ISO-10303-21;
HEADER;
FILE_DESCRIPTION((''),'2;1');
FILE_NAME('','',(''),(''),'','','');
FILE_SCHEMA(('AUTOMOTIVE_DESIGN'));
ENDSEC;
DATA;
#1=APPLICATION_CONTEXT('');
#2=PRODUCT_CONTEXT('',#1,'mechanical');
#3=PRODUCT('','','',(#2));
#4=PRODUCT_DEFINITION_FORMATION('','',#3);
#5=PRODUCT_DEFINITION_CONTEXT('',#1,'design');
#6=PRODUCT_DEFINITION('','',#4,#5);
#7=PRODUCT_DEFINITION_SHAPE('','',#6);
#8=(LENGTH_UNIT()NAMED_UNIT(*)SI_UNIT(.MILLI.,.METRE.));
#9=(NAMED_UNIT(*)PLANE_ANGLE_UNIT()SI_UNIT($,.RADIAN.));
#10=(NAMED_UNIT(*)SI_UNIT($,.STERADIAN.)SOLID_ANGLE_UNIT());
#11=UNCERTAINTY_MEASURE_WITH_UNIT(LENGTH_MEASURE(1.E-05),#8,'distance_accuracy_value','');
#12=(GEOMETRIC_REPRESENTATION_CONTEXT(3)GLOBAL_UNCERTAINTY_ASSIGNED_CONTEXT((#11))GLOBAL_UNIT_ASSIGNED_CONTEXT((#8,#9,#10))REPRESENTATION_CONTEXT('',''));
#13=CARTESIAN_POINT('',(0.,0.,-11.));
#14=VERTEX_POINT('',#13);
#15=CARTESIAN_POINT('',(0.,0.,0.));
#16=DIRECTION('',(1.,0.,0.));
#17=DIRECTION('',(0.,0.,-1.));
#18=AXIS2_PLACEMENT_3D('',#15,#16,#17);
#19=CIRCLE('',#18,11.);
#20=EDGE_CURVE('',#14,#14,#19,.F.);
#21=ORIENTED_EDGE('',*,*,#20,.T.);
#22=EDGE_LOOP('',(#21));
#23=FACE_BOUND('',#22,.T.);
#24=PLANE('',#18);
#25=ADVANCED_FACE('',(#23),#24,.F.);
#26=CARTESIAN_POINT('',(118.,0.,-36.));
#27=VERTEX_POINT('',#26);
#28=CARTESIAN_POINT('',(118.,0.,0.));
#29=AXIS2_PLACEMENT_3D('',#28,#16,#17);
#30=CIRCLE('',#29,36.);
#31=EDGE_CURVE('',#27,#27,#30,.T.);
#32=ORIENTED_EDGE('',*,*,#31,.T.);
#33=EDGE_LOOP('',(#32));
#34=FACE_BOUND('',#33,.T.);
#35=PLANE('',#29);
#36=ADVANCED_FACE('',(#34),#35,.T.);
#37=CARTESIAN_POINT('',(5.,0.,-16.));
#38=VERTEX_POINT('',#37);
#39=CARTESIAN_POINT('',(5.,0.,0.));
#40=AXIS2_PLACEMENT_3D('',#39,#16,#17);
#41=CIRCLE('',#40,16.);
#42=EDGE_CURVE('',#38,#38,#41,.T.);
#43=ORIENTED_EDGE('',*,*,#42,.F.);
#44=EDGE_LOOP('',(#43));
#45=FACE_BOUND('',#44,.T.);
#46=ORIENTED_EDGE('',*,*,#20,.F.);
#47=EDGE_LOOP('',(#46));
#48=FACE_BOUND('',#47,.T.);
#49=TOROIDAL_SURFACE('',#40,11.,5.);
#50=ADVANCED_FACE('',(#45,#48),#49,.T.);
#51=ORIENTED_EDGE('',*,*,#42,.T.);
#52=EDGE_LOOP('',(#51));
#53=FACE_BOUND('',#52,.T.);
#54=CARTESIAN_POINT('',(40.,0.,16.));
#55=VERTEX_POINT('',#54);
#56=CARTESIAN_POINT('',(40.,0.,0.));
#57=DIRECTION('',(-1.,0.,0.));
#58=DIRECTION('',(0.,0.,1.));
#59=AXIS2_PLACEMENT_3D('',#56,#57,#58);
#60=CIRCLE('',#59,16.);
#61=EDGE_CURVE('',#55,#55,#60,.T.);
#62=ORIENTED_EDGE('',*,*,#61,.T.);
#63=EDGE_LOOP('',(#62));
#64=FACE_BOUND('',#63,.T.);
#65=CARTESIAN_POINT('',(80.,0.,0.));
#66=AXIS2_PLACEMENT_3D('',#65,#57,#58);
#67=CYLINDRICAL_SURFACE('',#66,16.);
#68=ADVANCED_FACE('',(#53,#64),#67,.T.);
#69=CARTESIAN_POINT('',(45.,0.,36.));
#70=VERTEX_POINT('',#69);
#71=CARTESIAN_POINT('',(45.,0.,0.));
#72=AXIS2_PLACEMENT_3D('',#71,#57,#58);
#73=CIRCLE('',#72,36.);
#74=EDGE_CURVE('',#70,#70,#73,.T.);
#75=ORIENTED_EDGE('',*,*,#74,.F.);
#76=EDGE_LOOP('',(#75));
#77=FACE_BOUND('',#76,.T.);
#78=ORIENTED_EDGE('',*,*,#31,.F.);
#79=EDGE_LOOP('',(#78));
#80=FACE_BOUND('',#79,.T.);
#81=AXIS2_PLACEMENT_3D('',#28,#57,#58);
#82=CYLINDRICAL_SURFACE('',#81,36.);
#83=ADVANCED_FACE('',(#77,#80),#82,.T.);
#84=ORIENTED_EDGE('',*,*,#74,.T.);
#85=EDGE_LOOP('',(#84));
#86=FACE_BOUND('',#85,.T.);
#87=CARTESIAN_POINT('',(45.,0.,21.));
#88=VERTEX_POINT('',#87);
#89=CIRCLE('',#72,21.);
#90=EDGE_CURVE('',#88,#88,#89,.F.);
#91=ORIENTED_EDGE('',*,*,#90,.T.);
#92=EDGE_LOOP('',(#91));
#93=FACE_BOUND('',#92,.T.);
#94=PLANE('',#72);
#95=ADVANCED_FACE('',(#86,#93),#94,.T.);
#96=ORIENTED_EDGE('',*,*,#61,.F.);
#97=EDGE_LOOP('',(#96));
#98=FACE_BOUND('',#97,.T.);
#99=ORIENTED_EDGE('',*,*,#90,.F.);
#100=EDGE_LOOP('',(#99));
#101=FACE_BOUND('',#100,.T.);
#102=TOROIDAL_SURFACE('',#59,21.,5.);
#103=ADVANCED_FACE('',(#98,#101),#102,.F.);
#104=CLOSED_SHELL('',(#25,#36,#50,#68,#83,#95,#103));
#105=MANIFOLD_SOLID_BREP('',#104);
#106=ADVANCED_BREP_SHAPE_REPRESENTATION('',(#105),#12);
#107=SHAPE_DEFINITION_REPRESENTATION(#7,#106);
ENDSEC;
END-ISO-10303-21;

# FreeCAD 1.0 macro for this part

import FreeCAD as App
import Part
import Sketcher

V = App.Vector


def edges_at(feature, points):
    """Names of the edges that pass closest to the given points."""
    edges = feature.Shape.Edges
    near = lambda p: min(range(len(edges)), key=lambda i: edges[i].distToShape(Part.Vertex(*p))[0])
    return sorted({f"Edge{near(p) + 1}" for p in points})

doc = App.newDocument("Part")
body = doc.addObject("PartDesign::Body", "Body")

# Sketch on YZ plane
sketch1 = body.newObject("Sketcher::SketchObject", "Sketch")
sketch1.AttachmentSupport = (doc.getObject("YZ_Plane"), [""])
sketch1.MapMode = "FlatFace"
sketch1.addGeometry(Part.Circle(V(0, 0, 0), V(0, 0, 1), 16), False)
sketch1.addConstraint(Sketcher.Constraint("Coincident", 0, 3, -1, 1))
sketch1.addConstraint(Sketcher.Constraint("Diameter", 0, 32.0))
pad1 = body.newObject("PartDesign::Pad", "Pad")
pad1.Profile = sketch1
pad1.Length = 80

# Sketch on YZ plane
sketch2 = body.newObject("Sketcher::SketchObject", "Sketch001")
sketch2.AttachmentSupport = (doc.getObject("YZ_Plane"), [""])
sketch2.MapMode = "FlatFace"
sketch2.AttachmentOffset = App.Placement(V(0, 0, 80), App.Rotation())
sketch2.addGeometry(Part.Circle(V(0, 0, 0), V(0, 0, 1), 36), False)
sketch2.addConstraint(Sketcher.Constraint("Coincident", 0, 3, -1, 1))
sketch2.addConstraint(Sketcher.Constraint("Diameter", 0, 72.0))
pad2 = body.newObject("PartDesign::Pad", "Pad001")
pad2.Profile = sketch2
pad2.Length = 38

# Sketch on YZ plane
sketch3 = body.newObject("Sketcher::SketchObject", "Sketch002")
sketch3.AttachmentSupport = (doc.getObject("YZ_Plane"), [""])
sketch3.MapMode = "FlatFace"
sketch3.AttachmentOffset = App.Placement(V(0, 0, 80), App.Rotation())
sketch3.addGeometry(Part.Circle(V(0, 0, 0), V(0, 0, 1), 36), False)
sketch3.addGeometry(Part.Circle(V(0, 0, 0), V(0, 0, 1), 16), False)
sketch3.addConstraint(Sketcher.Constraint("Coincident", 0, 3, -1, 1))
sketch3.addConstraint(Sketcher.Constraint("Coincident", 1, 3, -1, 1))
sketch3.addConstraint(Sketcher.Constraint("Diameter", 0, 72.0))
sketch3.addConstraint(Sketcher.Constraint("Diameter", 1, 32.0))
pad3 = body.newObject("PartDesign::Pad", "Pad002")
pad3.Profile = sketch3
pad3.Length = 35
pad3.Reversed = True
doc.recompute()

fillet = body.newObject("PartDesign::Fillet", "Fillet")
fillet.Base = (pad3, edges_at(pad3, [(45, 0, 16), (0, 0, 16)]))
fillet.Radius = 5

doc.recompute()
